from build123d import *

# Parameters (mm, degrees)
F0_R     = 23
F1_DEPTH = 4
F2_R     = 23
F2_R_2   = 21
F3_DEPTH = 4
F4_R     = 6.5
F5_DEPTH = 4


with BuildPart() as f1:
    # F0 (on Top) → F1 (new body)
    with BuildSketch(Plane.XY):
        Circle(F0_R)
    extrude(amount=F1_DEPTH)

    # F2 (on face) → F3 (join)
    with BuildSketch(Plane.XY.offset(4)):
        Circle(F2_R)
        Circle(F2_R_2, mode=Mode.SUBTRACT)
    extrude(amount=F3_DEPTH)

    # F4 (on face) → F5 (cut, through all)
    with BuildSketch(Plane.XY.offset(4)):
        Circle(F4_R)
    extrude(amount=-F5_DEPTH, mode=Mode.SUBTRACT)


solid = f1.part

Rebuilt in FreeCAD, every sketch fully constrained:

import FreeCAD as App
import Part
import Sketcher

doc = App.newDocument("Part")
body = doc.addObject("PartDesign::Body", "Body")

sketch1 = doc.addObject("Sketcher::SketchObject", "Sketch")
body.addObject(sketch1)
sketch1.AttachmentSupport = (doc.XY_Plane, [""])
sketch1.MapMode = "FlatFace"
sketch1.addGeometry(Part.Circle(App.Vector(0, 0, 0), App.Vector(0, 0, 1), 23), False)
sketch1.addConstraint([
    Sketcher.Constraint("Coincident", 0, 3, -1, 1),
    Sketcher.Constraint("Diameter", 0, 46.0),
])
pad1 = doc.addObject("PartDesign::Pad", "Pad")
body.addObject(pad1)
pad1.Profile = sketch1
pad1.Length = 4

sketch2 = doc.addObject("Sketcher::SketchObject", "Sketch001")
body.addObject(sketch2)
sketch2.AttachmentSupport = (doc.XY_Plane, [""])
sketch2.MapMode = "FlatFace"
sketch2.AttachmentOffset = App.Placement(App.Vector(0, 0, 4), App.Rotation())
sketch2.addGeometry([
    Part.Circle(App.Vector(0, 0, 0), App.Vector(0, 0, 1), 23),
    Part.Circle(App.Vector(0, 0, 0), App.Vector(0, 0, 1), 21),
], False)
sketch2.addConstraint([
    Sketcher.Constraint("Coincident", 0, 3, -1, 1),
    Sketcher.Constraint("Coincident", 1, 3, -1, 1),
    Sketcher.Constraint("Diameter", 0, 46.0),
    Sketcher.Constraint("Diameter", 1, 42.0),
])
pad2 = doc.addObject("PartDesign::Pad", "Pad001")
body.addObject(pad2)
pad2.Profile = sketch2
pad2.Length = 4

sketch3 = doc.addObject("Sketcher::SketchObject", "Sketch002")
body.addObject(sketch3)
sketch3.AttachmentSupport = (doc.XY_Plane, [""])
sketch3.MapMode = "FlatFace"
sketch3.AttachmentOffset = App.Placement(App.Vector(0, 0, 4), App.Rotation())
sketch3.addGeometry(Part.Circle(App.Vector(0, 0, 0), App.Vector(0, 0, 1), 6), False)
sketch3.addConstraint([
    Sketcher.Constraint("Coincident", 0, 3, -1, 1),
    Sketcher.Constraint("Diameter", 0, 13.0),
])
pocket1 = doc.addObject("PartDesign::Pocket", "Pocket")
body.addObject(pocket1)
pocket1.Profile = sketch3
pocket1.Type = "ThroughAll"

doc.recompute()
